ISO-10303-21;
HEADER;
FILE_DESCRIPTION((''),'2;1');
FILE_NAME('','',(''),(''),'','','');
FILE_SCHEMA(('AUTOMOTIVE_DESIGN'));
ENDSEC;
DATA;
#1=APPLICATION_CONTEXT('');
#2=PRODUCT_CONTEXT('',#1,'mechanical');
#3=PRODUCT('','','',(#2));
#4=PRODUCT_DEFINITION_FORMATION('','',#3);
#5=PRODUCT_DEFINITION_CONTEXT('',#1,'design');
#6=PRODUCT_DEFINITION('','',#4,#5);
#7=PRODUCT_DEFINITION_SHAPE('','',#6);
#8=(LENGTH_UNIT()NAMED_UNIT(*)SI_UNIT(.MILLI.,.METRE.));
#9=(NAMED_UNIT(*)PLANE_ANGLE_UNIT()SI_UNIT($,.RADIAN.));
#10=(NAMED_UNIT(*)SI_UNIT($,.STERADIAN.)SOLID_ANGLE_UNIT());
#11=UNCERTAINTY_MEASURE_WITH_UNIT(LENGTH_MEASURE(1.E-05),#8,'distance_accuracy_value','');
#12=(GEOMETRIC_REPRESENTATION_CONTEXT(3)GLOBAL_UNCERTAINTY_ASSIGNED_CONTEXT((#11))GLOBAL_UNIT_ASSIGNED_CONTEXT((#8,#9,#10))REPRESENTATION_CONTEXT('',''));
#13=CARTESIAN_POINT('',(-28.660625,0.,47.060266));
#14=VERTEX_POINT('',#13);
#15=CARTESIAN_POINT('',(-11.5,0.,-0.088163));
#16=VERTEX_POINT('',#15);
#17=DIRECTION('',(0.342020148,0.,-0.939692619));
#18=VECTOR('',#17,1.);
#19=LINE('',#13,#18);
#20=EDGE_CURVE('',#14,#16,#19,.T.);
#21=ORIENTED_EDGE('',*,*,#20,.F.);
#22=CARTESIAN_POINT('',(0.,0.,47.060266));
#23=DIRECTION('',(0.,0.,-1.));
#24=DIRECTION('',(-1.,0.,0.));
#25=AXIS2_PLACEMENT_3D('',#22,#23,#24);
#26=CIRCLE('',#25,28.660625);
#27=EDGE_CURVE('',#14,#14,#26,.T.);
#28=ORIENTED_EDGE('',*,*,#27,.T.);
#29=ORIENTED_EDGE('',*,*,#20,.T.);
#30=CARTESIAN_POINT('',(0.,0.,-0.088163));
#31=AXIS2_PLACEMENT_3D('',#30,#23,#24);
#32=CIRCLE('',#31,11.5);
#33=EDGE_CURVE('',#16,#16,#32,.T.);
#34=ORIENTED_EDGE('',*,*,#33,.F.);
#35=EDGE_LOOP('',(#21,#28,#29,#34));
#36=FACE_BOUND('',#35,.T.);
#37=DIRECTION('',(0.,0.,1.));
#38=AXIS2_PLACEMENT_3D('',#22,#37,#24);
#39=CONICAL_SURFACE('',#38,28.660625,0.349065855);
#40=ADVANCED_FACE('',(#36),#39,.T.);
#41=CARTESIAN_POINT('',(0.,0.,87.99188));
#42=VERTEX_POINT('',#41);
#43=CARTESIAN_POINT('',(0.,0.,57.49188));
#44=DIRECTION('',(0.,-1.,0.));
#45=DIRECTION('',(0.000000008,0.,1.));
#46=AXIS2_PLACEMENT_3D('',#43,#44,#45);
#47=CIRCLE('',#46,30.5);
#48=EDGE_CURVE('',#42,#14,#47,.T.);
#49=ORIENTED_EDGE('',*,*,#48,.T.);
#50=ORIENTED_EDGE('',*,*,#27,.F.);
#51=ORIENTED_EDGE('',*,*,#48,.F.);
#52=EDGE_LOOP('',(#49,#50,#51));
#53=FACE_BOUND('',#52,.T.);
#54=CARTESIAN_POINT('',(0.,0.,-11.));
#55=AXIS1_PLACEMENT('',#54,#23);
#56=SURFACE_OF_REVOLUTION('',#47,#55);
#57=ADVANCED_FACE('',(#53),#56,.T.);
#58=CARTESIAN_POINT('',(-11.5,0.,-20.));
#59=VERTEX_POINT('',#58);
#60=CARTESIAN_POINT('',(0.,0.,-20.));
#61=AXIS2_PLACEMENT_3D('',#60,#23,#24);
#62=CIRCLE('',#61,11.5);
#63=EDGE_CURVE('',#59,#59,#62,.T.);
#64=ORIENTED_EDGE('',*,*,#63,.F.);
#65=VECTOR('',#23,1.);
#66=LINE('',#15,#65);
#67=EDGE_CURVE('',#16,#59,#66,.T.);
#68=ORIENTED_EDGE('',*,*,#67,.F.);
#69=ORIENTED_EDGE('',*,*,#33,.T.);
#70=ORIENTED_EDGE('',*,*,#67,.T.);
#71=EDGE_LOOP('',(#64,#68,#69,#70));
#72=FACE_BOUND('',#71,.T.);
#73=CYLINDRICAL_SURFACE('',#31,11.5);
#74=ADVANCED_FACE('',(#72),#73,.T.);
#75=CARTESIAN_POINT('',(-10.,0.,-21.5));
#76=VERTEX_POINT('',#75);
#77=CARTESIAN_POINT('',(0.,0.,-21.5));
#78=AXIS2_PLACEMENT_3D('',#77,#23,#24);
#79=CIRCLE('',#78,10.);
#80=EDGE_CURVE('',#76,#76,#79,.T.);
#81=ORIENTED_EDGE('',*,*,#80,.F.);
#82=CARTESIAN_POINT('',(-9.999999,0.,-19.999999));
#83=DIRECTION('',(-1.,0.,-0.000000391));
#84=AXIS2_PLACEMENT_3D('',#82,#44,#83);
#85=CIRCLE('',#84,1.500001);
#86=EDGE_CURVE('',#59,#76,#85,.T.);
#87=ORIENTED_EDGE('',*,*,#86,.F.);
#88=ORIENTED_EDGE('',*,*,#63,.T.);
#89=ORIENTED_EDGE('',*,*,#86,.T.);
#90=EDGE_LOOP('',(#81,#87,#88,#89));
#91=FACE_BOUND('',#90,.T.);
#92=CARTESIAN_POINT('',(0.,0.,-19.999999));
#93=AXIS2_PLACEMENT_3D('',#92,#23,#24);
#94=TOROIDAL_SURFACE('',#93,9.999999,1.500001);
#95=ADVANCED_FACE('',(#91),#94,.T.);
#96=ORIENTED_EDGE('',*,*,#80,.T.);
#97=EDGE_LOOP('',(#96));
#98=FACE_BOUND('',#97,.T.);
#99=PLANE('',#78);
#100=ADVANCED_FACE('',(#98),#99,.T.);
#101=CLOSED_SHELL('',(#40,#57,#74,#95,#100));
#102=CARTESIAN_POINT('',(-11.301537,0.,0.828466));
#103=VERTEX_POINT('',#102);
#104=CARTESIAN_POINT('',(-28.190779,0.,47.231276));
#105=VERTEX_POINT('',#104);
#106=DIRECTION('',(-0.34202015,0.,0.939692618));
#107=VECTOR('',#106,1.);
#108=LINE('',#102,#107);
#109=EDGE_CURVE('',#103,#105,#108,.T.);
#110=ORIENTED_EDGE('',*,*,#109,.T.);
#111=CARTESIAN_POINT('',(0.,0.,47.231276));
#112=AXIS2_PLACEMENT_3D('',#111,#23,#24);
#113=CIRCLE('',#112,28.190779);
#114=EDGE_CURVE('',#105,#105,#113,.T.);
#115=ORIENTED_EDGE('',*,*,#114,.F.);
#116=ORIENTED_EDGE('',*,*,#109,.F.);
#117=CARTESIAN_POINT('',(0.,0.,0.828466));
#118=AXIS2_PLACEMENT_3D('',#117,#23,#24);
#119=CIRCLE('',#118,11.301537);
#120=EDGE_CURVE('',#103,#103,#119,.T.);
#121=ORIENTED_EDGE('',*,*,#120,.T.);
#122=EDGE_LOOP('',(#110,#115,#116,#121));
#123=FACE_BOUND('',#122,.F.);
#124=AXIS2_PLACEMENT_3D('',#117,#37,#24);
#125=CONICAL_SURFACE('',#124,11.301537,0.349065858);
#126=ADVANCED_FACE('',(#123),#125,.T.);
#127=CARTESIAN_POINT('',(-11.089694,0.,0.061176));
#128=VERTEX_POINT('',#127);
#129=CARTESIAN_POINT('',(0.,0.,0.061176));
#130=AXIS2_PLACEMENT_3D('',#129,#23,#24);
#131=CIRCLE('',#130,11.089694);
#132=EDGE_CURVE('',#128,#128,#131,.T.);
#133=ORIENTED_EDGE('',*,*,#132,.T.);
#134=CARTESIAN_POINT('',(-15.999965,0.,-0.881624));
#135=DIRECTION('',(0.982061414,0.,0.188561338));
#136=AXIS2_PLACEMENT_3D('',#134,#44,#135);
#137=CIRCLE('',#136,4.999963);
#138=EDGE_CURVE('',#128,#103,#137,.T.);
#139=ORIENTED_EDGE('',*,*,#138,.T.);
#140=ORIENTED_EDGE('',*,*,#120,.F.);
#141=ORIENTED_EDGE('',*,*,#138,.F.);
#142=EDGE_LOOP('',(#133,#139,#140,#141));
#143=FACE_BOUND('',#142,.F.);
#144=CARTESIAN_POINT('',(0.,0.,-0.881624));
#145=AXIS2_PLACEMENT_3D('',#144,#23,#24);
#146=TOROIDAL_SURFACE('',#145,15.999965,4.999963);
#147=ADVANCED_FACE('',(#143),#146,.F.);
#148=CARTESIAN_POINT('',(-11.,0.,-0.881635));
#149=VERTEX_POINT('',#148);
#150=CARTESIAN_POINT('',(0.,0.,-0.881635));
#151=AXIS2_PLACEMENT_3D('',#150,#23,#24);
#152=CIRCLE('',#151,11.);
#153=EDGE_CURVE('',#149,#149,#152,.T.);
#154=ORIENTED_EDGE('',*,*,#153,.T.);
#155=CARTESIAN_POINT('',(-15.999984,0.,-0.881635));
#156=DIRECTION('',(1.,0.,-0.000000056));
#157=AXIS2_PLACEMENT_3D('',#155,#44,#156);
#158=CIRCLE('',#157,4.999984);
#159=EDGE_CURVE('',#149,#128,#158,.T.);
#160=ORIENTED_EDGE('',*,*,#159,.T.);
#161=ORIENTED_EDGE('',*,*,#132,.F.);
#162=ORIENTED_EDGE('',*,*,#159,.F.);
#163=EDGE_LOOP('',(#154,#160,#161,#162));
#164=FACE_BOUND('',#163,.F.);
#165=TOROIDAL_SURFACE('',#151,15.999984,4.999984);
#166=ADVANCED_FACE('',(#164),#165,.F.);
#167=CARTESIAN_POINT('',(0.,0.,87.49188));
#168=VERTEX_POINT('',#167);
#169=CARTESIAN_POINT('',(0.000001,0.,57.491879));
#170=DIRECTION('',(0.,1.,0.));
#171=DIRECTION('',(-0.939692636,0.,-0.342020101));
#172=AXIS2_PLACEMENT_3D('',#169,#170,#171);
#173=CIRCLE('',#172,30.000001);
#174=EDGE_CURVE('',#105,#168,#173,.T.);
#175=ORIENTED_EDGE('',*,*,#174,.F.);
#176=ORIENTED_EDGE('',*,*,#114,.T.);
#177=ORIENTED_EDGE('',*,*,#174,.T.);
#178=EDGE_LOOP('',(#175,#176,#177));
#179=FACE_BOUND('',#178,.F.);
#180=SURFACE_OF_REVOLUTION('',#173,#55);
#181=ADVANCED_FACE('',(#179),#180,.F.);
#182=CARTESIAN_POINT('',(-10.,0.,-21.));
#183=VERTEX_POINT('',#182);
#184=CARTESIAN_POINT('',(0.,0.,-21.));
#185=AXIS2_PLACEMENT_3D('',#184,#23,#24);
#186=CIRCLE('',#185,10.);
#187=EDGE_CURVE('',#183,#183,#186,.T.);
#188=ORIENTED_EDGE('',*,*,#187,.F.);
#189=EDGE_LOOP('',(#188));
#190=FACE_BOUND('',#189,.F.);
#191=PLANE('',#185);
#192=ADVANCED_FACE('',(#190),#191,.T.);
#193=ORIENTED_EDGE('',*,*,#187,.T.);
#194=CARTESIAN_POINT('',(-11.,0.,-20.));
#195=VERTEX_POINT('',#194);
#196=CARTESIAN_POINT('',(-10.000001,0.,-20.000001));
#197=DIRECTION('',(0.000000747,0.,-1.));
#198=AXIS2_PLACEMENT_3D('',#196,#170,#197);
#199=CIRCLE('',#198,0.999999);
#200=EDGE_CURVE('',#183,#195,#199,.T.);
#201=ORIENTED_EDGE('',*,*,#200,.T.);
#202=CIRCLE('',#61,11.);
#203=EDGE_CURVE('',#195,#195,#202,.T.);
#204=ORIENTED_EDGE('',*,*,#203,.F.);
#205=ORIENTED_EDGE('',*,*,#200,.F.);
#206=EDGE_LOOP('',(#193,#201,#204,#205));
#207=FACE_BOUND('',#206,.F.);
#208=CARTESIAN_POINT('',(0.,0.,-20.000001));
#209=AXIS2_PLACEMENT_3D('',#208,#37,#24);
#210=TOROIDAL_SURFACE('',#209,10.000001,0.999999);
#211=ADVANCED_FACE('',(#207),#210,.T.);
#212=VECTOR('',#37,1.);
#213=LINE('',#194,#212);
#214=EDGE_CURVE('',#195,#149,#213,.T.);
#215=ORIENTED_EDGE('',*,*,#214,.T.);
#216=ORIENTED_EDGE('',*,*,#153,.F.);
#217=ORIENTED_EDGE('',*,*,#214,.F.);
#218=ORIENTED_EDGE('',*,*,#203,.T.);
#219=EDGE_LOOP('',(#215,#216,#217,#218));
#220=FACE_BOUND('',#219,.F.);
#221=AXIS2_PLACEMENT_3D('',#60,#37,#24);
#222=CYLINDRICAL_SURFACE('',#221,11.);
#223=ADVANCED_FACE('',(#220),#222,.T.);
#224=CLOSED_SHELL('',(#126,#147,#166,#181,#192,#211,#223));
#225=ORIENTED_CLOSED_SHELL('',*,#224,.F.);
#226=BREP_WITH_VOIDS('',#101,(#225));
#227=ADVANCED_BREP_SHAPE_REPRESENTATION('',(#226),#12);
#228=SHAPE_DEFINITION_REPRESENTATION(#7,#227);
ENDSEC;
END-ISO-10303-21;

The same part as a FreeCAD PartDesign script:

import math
import FreeCAD as App
import Part
import Sketcher
Q = App.Units.Quantity

doc = App.newDocument("Part")
body = doc.addObject("PartDesign::Body", "Body")

sketch1 = body.newObject("Sketcher::SketchObject", "Sketch")
sketch1.AttachmentSupport = (doc.getObject("XZ_Plane"), [""])
sketch1.MapMode = "FlatFace"
sketch1.addGeometry([
    Part.ArcOfCircle(Part.Circle(App.Vector(0, 57.5, 0), App.Vector(0, 0, 1), 30), math.radians(90), math.radians(200)),
    Part.LineSegment(App.Vector(0, 87.5, 0), App.Vector(0, 88, 0)),
    Part.ArcOfCircle(Part.Circle(App.Vector(0, 57.5, 0), App.Vector(0, 0, 1), 30.5), math.radians(90), math.radians(200)),
    Part.LineSegment(App.Vector(-28.7, 47.1, 0), App.Vector(-11.5, -0.1, 0)),
    Part.LineSegment(App.Vector(-11.5, -0.1, 0), App.Vector(-11.5, -20, 0)),
    Part.ArcOfCircle(Part.Circle(App.Vector(-10, -20, 0), App.Vector(0, 0, 1), 1.5), math.radians(-180), math.radians(-90)),
    Part.LineSegment(App.Vector(-10, -21.5, 0), App.Vector(0, -21.5, 0)),
    Part.LineSegment(App.Vector(0, -21.5, 0), App.Vector(0, -21, 0)),
    Part.LineSegment(App.Vector(0, -21, 0), App.Vector(-10, -21, 0)),
    Part.ArcOfCircle(Part.Circle(App.Vector(-10, -20, 0), App.Vector(0, 0, 1), 1), math.radians(180), math.radians(270)),
    Part.LineSegment(App.Vector(-11, -20, 0), App.Vector(-11, -0.9, 0)),
    Part.ArcOfCircle(Part.Circle(App.Vector(-16, -0.9, 0), App.Vector(0, 0, 1), 5), math.radians(0), math.radians(10.87)),
    Part.ArcOfCircle(Part.Circle(App.Vector(-16, -0.9, 0), App.Vector(0, 0, 1), 5), math.radians(10.87), math.radians(20)),
    Part.LineSegment(App.Vector(-11.3, 0.8, 0), App.Vector(-28.2, 47.2, 0)),
], False)
sketch1.addConstraint([
    Sketcher.Constraint("Coincident", 0, 1, 1, 1),
    Sketcher.Constraint("Coincident", 1, 2, 2, 1),
    Sketcher.Constraint("Tangent", 2, 2, 3, 1),
    Sketcher.Constraint("Coincident", 3, 2, 4, 1),
    Sketcher.Constraint("Tangent", 4, 2, 5, 1),
    Sketcher.Constraint("Tangent", 5, 2, 6, 1),
    Sketcher.Constraint("Coincident", 6, 2, 7, 1),
    Sketcher.Constraint("Coincident", 7, 2, 8, 1),
    Sketcher.Constraint("Tangent", 8, 2, 9, 2),
    Sketcher.Constraint("Tangent", 9, 1, 10, 1),
    Sketcher.Constraint("Tangent", 10, 2, 11, 1),
    Sketcher.Constraint("Tangent", 11, 2, 12, 1),
    Sketcher.Constraint("Tangent", 12, 2, 13, 1),
    Sketcher.Constraint("Tangent", 13, 2, 0, 2),
    Sketcher.Constraint("Vertical", 1),
    Sketcher.Constraint("Vertical", 4),
    Sketcher.Constraint("Horizontal", 6),
    Sketcher.Constraint("Vertical", 7),
    Sketcher.Constraint("Horizontal", 8),
    Sketcher.Constraint("Vertical", 10),
    Sketcher.Constraint("Coincident", 2, 3, 0, 3),
    Sketcher.Constraint("Coincident", 9, 3, 5, 3),
    Sketcher.Constraint("PointOnObject", 0, 3, -2),
    Sketcher.Constraint("PointOnObject", 0, 1, -2),
    Sketcher.Constraint("PointOnObject", 6, 2, -2),
    Sketcher.Constraint("Parallel", 3, 13),
    Sketcher.Constraint("Equal", 1, 7),
    Sketcher.Constraint("Radius", 0, 30.000001),
    Sketcher.Constraint("Radius", 9, 0.999999),
    Sketcher.Constraint("Radius", 2, 30.5),
    Sketcher.Constraint("DistanceX", 6, 1, 6, 2, 10.0),
    Sketcher.Constraint("Angle", 3, Q("-70 deg")),
    Sketcher.Constraint("DistanceY", 5, 3, -1, 1, 19.999999),
    Sketcher.Constraint("Radius", 11, 4.999984),
    Sketcher.Constraint("Radius", 12, 4.999963),
    Sketcher.Constraint("DistanceY", 12, 3, 11, 2, 0.9428),
    Sketcher.Constraint("DistanceY", 4, 2, 4, 1, 19.911837),
])
revolution = body.newObject("PartDesign::Revolution", "Revolution")
revolution.Profile = sketch1
revolution.ReferenceAxis = (sketch1, ["V_Axis"])
revolution.Angle = 360

doc.recompute()
